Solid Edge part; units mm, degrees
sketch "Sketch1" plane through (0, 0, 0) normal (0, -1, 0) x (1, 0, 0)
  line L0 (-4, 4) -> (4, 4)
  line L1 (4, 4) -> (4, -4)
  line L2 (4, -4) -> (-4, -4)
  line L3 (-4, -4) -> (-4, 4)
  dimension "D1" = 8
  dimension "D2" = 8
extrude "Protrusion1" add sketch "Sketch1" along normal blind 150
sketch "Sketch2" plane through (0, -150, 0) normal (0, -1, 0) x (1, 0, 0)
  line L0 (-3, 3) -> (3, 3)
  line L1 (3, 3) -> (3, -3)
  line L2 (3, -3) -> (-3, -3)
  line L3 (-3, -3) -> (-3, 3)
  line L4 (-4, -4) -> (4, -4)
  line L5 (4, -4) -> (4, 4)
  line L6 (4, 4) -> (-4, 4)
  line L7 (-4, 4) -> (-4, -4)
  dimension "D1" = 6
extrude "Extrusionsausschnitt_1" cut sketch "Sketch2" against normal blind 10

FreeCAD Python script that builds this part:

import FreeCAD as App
import Part
import Sketcher
Q = App.Units.Quantity

doc = App.newDocument("Part")
body = doc.addObject("PartDesign::Body", "Body")

sketch1 = body.newObject("Sketcher::SketchObject", "Sketch")
sketch1.AttachmentSupport = (doc.getObject("XZ_Plane"), [""])
sketch1.MapMode = "FlatFace"
sketch1.addGeometry([
    Part.LineSegment(App.Vector(4, 4, 0), App.Vector(-4, 4, 0)),
    Part.LineSegment(App.Vector(-4, 4, 0), App.Vector(-4, -4, 0)),
    Part.LineSegment(App.Vector(-4, -4, 0), App.Vector(4, -4, 0)),
    Part.LineSegment(App.Vector(4, -4, 0), App.Vector(4, 4, 0)),
], False)
sketch1.addConstraint([
    Sketcher.Constraint("Coincident", 0, 2, 1, 1),
    Sketcher.Constraint("Coincident", 1, 2, 2, 1),
    Sketcher.Constraint("Coincident", 2, 2, 3, 1),
    Sketcher.Constraint("Coincident", 3, 2, 0, 1),
    Sketcher.Constraint("Horizontal", 0),
    Sketcher.Constraint("Vertical", 1),
    Sketcher.Constraint("Horizontal", 2),
    Sketcher.Constraint("Vertical", 3),
    Sketcher.Constraint("Symmetric", 0, 2, 2, 2, -1, 1),
    Sketcher.Constraint("Equal", 2, 1),
    Sketcher.Constraint("DistanceX", 0, 2, -1, 1, Q("4 mm")),
])
pad1 = body.newObject("PartDesign::Pad", "Pad")
pad1.Profile = sketch1
pad1.Length = 150

sketch2 = body.newObject("Sketcher::SketchObject", "Sketch001")
sketch2.AttachmentSupport = (doc.getObject("XZ_Plane"), [""])
sketch2.MapMode = "FlatFace"
sketch2.AttachmentOffset = App.Placement(App.Vector(0, 0, 150), App.Rotation())
sketch2.addGeometry([
    Part.LineSegment(App.Vector(-4, 4, 0), App.Vector(-4, -4, 0)),
    Part.LineSegment(App.Vector(-4, -4, 0), App.Vector(4, -4, 0)),
    Part.LineSegment(App.Vector(4, -4, 0), App.Vector(4, 4, 0)),
    Part.LineSegment(App.Vector(4, 4, 0), App.Vector(-4, 4, 0)),
    Part.LineSegment(App.Vector(-3, -3, 0), App.Vector(-3, 3, 0)),
    Part.LineSegment(App.Vector(-3, 3, 0), App.Vector(3, 3, 0)),
    Part.LineSegment(App.Vector(3, 3, 0), App.Vector(3, -3, 0)),
    Part.LineSegment(App.Vector(3, -3, 0), App.Vector(-3, -3, 0)),
], False)
sketch2.addConstraint([
    Sketcher.Constraint("Coincident", 0, 2, 1, 1),
    Sketcher.Constraint("Coincident", 1, 2, 2, 1),
    Sketcher.Constraint("Coincident", 2, 2, 3, 1),
    Sketcher.Constraint("Coincident", 3, 2, 0, 1),
    Sketcher.Constraint("Coincident", 4, 2, 5, 1),
    Sketcher.Constraint("Coincident", 5, 2, 6, 1),
    Sketcher.Constraint("Coincident", 6, 2, 7, 1),
    Sketcher.Constraint("Coincident", 7, 2, 4, 1),
    Sketcher.Constraint("Vertical", 0),
    Sketcher.Constraint("Horizontal", 1),
    Sketcher.Constraint("Vertical", 2),
    Sketcher.Constraint("Horizontal", 3),
    Sketcher.Constraint("Vertical", 4),
    Sketcher.Constraint("Horizontal", 5),
    Sketcher.Constraint("Vertical", 6),
    Sketcher.Constraint("Horizontal", 7),
    Sketcher.Constraint("Symmetric", 0, 2, 2, 2, -1, 1),
    Sketcher.Constraint("Symmetric", 4, 2, 6, 2, -1, 1),
    Sketcher.Constraint("Equal", 3, 0),
    Sketcher.Constraint("Equal", 7, 4),
    Sketcher.Constraint("DistanceX", 4, 2, -1, 1, Q("3 mm")),
    Sketcher.Constraint("DistanceX", 1, 1, 1, 2, Q("8 mm")),
])
pocket1 = body.newObject("PartDesign::Pocket", "Pocket")
pocket1.Profile = sketch2
pocket1.Length = 10

doc.recompute()
